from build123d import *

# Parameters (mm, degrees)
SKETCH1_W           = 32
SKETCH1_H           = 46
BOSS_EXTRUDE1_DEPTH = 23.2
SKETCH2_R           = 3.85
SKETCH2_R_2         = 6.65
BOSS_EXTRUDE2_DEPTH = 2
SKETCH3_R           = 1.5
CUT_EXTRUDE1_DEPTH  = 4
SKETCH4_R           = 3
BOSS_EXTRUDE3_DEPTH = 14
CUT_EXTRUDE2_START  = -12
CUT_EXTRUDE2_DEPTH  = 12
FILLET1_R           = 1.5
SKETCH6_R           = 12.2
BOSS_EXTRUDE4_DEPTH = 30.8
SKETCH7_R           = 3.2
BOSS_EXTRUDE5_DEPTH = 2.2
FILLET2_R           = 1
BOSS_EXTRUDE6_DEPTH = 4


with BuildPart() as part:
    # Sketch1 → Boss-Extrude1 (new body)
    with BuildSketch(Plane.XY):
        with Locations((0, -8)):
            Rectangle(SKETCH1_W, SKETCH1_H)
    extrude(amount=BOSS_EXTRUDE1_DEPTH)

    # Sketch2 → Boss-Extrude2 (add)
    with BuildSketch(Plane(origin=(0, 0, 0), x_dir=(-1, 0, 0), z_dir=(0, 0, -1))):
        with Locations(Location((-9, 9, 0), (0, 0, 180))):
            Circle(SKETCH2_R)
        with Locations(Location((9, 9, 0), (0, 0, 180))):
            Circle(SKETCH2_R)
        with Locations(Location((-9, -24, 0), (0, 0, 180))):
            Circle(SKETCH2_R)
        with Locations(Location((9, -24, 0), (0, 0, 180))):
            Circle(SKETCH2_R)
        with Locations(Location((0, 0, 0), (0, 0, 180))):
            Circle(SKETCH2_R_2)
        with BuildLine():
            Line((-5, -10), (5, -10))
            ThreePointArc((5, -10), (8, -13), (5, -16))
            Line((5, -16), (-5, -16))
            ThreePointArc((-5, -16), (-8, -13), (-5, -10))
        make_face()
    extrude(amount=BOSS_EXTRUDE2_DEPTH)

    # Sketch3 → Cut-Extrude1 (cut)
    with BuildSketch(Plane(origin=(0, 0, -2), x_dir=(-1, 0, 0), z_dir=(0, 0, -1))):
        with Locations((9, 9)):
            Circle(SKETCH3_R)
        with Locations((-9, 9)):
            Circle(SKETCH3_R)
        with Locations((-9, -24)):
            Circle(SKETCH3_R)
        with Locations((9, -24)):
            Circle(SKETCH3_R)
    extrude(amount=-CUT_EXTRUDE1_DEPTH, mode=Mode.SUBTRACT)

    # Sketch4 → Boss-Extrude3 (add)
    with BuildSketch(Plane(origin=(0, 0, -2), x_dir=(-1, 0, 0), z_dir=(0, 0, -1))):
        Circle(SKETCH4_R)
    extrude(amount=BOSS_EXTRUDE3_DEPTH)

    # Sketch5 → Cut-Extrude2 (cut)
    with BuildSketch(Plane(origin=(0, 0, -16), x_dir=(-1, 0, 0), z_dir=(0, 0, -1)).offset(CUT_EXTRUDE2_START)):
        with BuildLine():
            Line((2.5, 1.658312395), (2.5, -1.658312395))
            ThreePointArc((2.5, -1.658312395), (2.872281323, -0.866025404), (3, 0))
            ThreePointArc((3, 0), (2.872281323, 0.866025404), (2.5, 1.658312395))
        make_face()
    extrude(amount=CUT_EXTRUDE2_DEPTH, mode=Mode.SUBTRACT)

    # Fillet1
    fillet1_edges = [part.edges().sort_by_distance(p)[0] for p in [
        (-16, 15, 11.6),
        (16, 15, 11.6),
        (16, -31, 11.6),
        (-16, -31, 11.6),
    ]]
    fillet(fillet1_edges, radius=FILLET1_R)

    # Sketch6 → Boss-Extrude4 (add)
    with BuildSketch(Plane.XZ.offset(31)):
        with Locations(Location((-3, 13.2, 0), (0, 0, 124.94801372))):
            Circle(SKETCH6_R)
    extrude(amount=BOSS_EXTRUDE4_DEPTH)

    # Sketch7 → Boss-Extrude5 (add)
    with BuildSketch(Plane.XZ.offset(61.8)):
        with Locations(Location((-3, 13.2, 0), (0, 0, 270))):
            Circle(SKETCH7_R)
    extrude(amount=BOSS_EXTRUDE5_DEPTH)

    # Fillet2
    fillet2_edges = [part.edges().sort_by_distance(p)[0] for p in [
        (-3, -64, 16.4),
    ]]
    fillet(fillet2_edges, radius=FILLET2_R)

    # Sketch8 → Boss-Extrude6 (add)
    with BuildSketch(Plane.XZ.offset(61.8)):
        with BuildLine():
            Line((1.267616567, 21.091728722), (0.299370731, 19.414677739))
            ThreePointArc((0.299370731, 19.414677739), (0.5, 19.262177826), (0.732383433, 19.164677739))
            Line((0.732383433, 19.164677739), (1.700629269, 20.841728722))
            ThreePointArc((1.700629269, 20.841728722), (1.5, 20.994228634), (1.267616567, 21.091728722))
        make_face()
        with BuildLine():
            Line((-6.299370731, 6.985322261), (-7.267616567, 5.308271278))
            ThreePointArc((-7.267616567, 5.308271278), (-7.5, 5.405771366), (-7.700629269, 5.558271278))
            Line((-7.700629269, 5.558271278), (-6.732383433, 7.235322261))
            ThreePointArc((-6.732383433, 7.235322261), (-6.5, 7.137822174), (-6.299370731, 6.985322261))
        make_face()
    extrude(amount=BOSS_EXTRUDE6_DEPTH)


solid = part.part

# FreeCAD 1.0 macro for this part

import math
import FreeCAD as App
import Part
import Sketcher
Q = App.Units.Quantity


def edges_at(feature, points):
    """Names of the edges that pass closest to the given points."""
    edges = feature.Shape.Edges
    near = lambda p: min(range(len(edges)), key=lambda i: edges[i].distToShape(Part.Vertex(*p))[0])
    return sorted({f"Edge{near(p) + 1}" for p in points})


def add_polygon(sketch, points):
    """Adds a closed chain of lines whose ends are joined by coincident constraints."""
    first, n = sketch.GeometryCount, len(points)
    for a, b in zip(points, points[1:] + points[:1]):
        sketch.addGeometry(Part.LineSegment(App.Vector(*a, 0), App.Vector(*b, 0)), False)
    for i in range(n):
        sketch.addConstraint(Sketcher.Constraint("Coincident", first + i, 2, first + (i + 1) % n, 1))

doc = App.newDocument("Part")
body = doc.addObject("PartDesign::Body", "Body")

# Sketch on XY plane
sketch1 = body.newObject("Sketcher::SketchObject", "Sketch")
sketch1.AttachmentSupport = (doc.getObject("XY_Plane"), [""])
sketch1.MapMode = "FlatFace"
add_polygon(sketch1, [(-16, 15), (-16, -31), (16, -31), (16, 15)])  # lines 0-3
sketch1.addConstraint(Sketcher.Constraint("Vertical", 0))
sketch1.addConstraint(Sketcher.Constraint("Horizontal", 1))
sketch1.addConstraint(Sketcher.Constraint("Vertical", 2))
sketch1.addConstraint(Sketcher.Constraint("Horizontal", 3))
sketch1.addConstraint(Sketcher.Constraint("DistanceX", 1, 1, 1, 2, Q("32 mm")))
sketch1.addConstraint(Sketcher.Constraint("DistanceY", 0, 2, 0, 1, Q("46 mm")))
sketch1.addConstraint(Sketcher.Constraint("DistanceX", 0, 2, -1, 1, Q("16 mm")))
sketch1.addConstraint(Sketcher.Constraint("DistanceY", 0, 2, -1, 1, Q("31 mm")))
pad1 = body.newObject("PartDesign::Pad", "Pad")
pad1.Profile = sketch1
pad1.Length = 23.2

# Sketch on XY plane
sketch2 = body.newObject("Sketcher::SketchObject", "Sketch001")
sketch2.AttachmentSupport = (doc.getObject("XY_Plane"), [""])
sketch2.MapMode = "FlatFace"
sketch2.addGeometry(Part.Circle(App.Vector(9, 9, 0), App.Vector(0, 0, 1), 3.9), False)
sketch2.addGeometry(Part.Circle(App.Vector(-9, 9, 0), App.Vector(0, 0, 1), 3.9), False)
sketch2.addGeometry(Part.Circle(App.Vector(9, -24, 0), App.Vector(0, 0, 1), 3.9), False)
sketch2.addGeometry(Part.Circle(App.Vector(-9, -24, 0), App.Vector(0, 0, 1), 3.9), False)
sketch2.addGeometry(Part.Circle(App.Vector(0, 0, 0), App.Vector(0, 0, 1), 6.7), False)
sketch2.addGeometry(Part.LineSegment(App.Vector(-5, -10, 0), App.Vector(5, -10, 0)), False)
sketch2.addGeometry(Part.ArcOfCircle(Part.Circle(App.Vector(5, -13, 0), App.Vector(0, 0, 1), 3), math.radians(-90), math.radians(90)), False)
sketch2.addGeometry(Part.LineSegment(App.Vector(5, -16, 0), App.Vector(-5, -16, 0)), False)
sketch2.addGeometry(Part.ArcOfCircle(Part.Circle(App.Vector(-5, -13, 0), App.Vector(0, 0, 1), 3), math.radians(90), math.radians(270)), False)
sketch2.addConstraint(Sketcher.Constraint("Tangent", 5, 2, 6, 2))
sketch2.addConstraint(Sketcher.Constraint("Tangent", 6, 1, 7, 1))
sketch2.addConstraint(Sketcher.Constraint("Tangent", 7, 2, 8, 2))
sketch2.addConstraint(Sketcher.Constraint("Tangent", 8, 1, 5, 1))
sketch2.addConstraint(Sketcher.Constraint("Horizontal", 5))
sketch2.addConstraint(Sketcher.Constraint("Horizontal", 7))
sketch2.addConstraint(Sketcher.Constraint("Coincident", 4, 3, -1, 1))
sketch2.addConstraint(Sketcher.Constraint("Equal", 0, 1))
sketch2.addConstraint(Sketcher.Constraint("Equal", 1, 2))
sketch2.addConstraint(Sketcher.Constraint("Equal", 2, 3))
sketch2.addConstraint(Sketcher.Constraint("Symmetric", 0, 3, 1, 3, -2))
sketch2.addConstraint(Sketcher.Constraint("Symmetric", 2, 3, 3, 3, -2))
sketch2.addConstraint(Sketcher.Constraint("Vertical", 0, 3, 2, 3))
sketch2.addConstraint(Sketcher.Constraint("Radius", 6, Q("3 mm")))
sketch2.addConstraint(Sketcher.Constraint("Diameter", 0, Q("7.7 mm")))
sketch2.addConstraint(Sketcher.Constraint("Diameter", 4, Q("13.3 mm")))
sketch2.addConstraint(Sketcher.Constraint("DistanceX", 5, 1, 5, 2, Q("10 mm")))
sketch2.addConstraint(Sketcher.Constraint("DistanceX", -1, 1, 0, 3, Q("9 mm")))
sketch2.addConstraint(Sketcher.Constraint("DistanceY", -1, 1, 0, 3, Q("9 mm")))
sketch2.addConstraint(Sketcher.Constraint("DistanceY", 2, 3, -1, 1, Q("24 mm")))
sketch2.addConstraint(Sketcher.Constraint("DistanceX", -1, 1, 6, 3, Q("5 mm")))
sketch2.addConstraint(Sketcher.Constraint("DistanceY", 6, 3, -1, 1, Q("13 mm")))
pad2 = body.newObject("PartDesign::Pad", "Pad001")
pad2.Profile = sketch2
pad2.Length = 2
pad2.Reversed = True

# Sketch on XY plane
sketch3 = body.newObject("Sketcher::SketchObject", "Sketch002")
sketch3.AttachmentSupport = (doc.getObject("XY_Plane"), [""])
sketch3.MapMode = "FlatFace"
sketch3.AttachmentOffset = App.Placement(App.Vector(0, 0, -2), App.Rotation())
sketch3.addGeometry(Part.Circle(App.Vector(-9, 9, 0), App.Vector(0, 0, 1), 1.5), False)
sketch3.addGeometry(Part.Circle(App.Vector(9, 9, 0), App.Vector(0, 0, 1), 1.5), False)
sketch3.addGeometry(Part.Circle(App.Vector(9, -24, 0), App.Vector(0, 0, 1), 1.5), False)
sketch3.addGeometry(Part.Circle(App.Vector(-9, -24, 0), App.Vector(0, 0, 1), 1.5), False)
sketch3.addConstraint(Sketcher.Constraint("Equal", 0, 1))
sketch3.addConstraint(Sketcher.Constraint("Equal", 1, 2))
sketch3.addConstraint(Sketcher.Constraint("Equal", 2, 3))
sketch3.addConstraint(Sketcher.Constraint("Symmetric", 0, 3, 1, 3, -2))
sketch3.addConstraint(Sketcher.Constraint("Symmetric", 2, 3, 3, 3, -2))
sketch3.addConstraint(Sketcher.Constraint("Vertical", 1, 3, 2, 3))
sketch3.addConstraint(Sketcher.Constraint("Diameter", 0, Q("3 mm")))
sketch3.addConstraint(Sketcher.Constraint("DistanceX", 0, 3, -1, 1, Q("9 mm")))
sketch3.addConstraint(Sketcher.Constraint("DistanceY", -1, 1, 0, 3, Q("9 mm")))
sketch3.addConstraint(Sketcher.Constraint("DistanceY", 2, 3, -1, 1, Q("24 mm")))
pocket1 = body.newObject("PartDesign::Pocket", "Pocket")
pocket1.Profile = sketch3
pocket1.Length = 4
pocket1.Reversed = True

# Sketch on XY plane
sketch4 = body.newObject("Sketcher::SketchObject", "Sketch003")
sketch4.AttachmentSupport = (doc.getObject("XY_Plane"), [""])
sketch4.MapMode = "FlatFace"
sketch4.AttachmentOffset = App.Placement(App.Vector(0, 0, -2), App.Rotation())
sketch4.addGeometry(Part.Circle(App.Vector(0, 0, 0), App.Vector(0, 0, 1), 3), False)
sketch4.addConstraint(Sketcher.Constraint("Coincident", 0, 3, -1, 1))
sketch4.addConstraint(Sketcher.Constraint("Diameter", 0, Q("6 mm")))
pad3 = body.newObject("PartDesign::Pad", "Pad002")
pad3.Profile = sketch4
pad3.Length = 14
pad3.Reversed = True

# Sketch on XY plane
sketch5 = body.newObject("Sketcher::SketchObject", "Sketch004")
sketch5.AttachmentSupport = (doc.getObject("XY_Plane"), [""])
sketch5.MapMode = "FlatFace"
sketch5.AttachmentOffset = App.Placement(App.Vector(0, 0, -4), App.Rotation())
sketch5.addGeometry(Part.LineSegment(App.Vector(-2.5, 1.7, 0), App.Vector(-2.5, -1.7, 0)), False)
sketch5.addGeometry(Part.ArcOfCircle(Part.Circle(App.Vector(0, 0, 0), App.Vector(0, 0, 1), 3), math.radians(-180), math.radians(-146)), False)
sketch5.addGeometry(Part.ArcOfCircle(Part.Circle(App.Vector(0, 0, 0), App.Vector(0, 0, 1), 3), math.radians(146), math.radians(180)), False)
sketch5.addConstraint(Sketcher.Constraint("Coincident", 0, 2, 1, 2))
sketch5.addConstraint(Sketcher.Constraint("Tangent", 1, 1, 2, 2))
sketch5.addConstraint(Sketcher.Constraint("Coincident", 2, 1, 0, 1))
sketch5.addConstraint(Sketcher.Constraint("Vertical", 0))
sketch5.addConstraint(Sketcher.Constraint("Coincident", 1, 3, -1, 1))
sketch5.addConstraint(Sketcher.Constraint("Equal", 1, 2))
sketch5.addConstraint(Sketcher.Constraint("PointOnObject", 1, 1, -1))
sketch5.addConstraint(Sketcher.Constraint("Radius", 1, Q("3 mm")))
sketch5.addConstraint(Sketcher.Constraint("DistanceX", 0, 2, -1, 1, Q("2.5 mm")))
pocket2 = body.newObject("PartDesign::Pocket", "Pocket001")
pocket2.Profile = sketch5
pocket2.Length = 12
doc.recompute()

fillet = body.newObject("PartDesign::Fillet", "Fillet")
fillet.Base = (pocket2, edges_at(pocket2, [
    (-16, 15, 11.6),
    (16, 15, 11.6),
    (16, -31, 11.6),
    (-16, -31, 11.6),
]))
fillet.Radius = 1.5

# Sketch on XZ plane
sketch6 = body.newObject("Sketcher::SketchObject", "Sketch005")
sketch6.AttachmentSupport = (doc.getObject("XZ_Plane"), [""])
sketch6.MapMode = "FlatFace"
sketch6.AttachmentOffset = App.Placement(App.Vector(0, 0, 31), App.Rotation())
sketch6.addGeometry(Part.Circle(App.Vector(-3, 13, 0), App.Vector(0, 0, 1), 12), False)
sketch6.addConstraint(Sketcher.Constraint("Diameter", 0, Q("24.4 mm")))
sketch6.addConstraint(Sketcher.Constraint("DistanceX", 0, 3, -1, 1, Q("3 mm")))
sketch6.addConstraint(Sketcher.Constraint("DistanceY", -1, 1, 0, 3, Q("13.2 mm")))
pad4 = body.newObject("PartDesign::Pad", "Pad003")
pad4.Profile = sketch6
pad4.Length = 30.8

# Sketch on XZ plane
sketch7 = body.newObject("Sketcher::SketchObject", "Sketch006")
sketch7.AttachmentSupport = (doc.getObject("XZ_Plane"), [""])
sketch7.MapMode = "FlatFace"
sketch7.AttachmentOffset = App.Placement(App.Vector(0, 0, 61.8), App.Rotation())
sketch7.addGeometry(Part.Circle(App.Vector(-3, 13.2, 0), App.Vector(0, 0, 1), 3.2), False)
sketch7.addConstraint(Sketcher.Constraint("Diameter", 0, Q("6.4 mm")))
sketch7.addConstraint(Sketcher.Constraint("DistanceX", 0, 3, -1, 1, Q("3 mm")))
sketch7.addConstraint(Sketcher.Constraint("DistanceY", -1, 1, 0, 3, Q("13.2 mm")))
pad5 = body.newObject("PartDesign::Pad", "Pad004")
pad5.Profile = sketch7
pad5.Length = 2.2
doc.recompute()

fillet2 = body.newObject("PartDesign::Fillet", "Fillet001")
fillet2.Base = (pad5, edges_at(pad5, [(-3, -64, 16.4)]))
fillet2.Radius = 1

# Sketch on XZ plane
sketch8 = body.newObject("Sketcher::SketchObject", "Sketch007")
sketch8.AttachmentSupport = (doc.getObject("XZ_Plane"), [""])
sketch8.MapMode = "FlatFace"
sketch8.AttachmentOffset = App.Placement(App.Vector(0, 0, 61.8), App.Rotation())
sketch8.addGeometry(Part.LineSegment(App.Vector(1.3, 21.1, 0), App.Vector(0.3, 19.4, 0)), False)
sketch8.addGeometry(Part.ArcOfCircle(Part.Circle(App.Vector(1, 20.1, 0), App.Vector(0, 0, 1), 1), math.radians(-134), math.radians(-106)), False)
sketch8.addGeometry(Part.LineSegment(App.Vector(0.7, 19.2, 0), App.Vector(1.7, 20.8, 0)), False)
sketch8.addGeometry(Part.ArcOfCircle(Part.Circle(App.Vector(1, 20.1, 0), App.Vector(0, 0, 1), 1), math.radians(46), math.radians(74)), False)
sketch8.addGeometry(Part.LineSegment(App.Vector(-7.3, 5.3, 0), App.Vector(-6.3, 7, 0)), False)
sketch8.addGeometry(Part.ArcOfCircle(Part.Circle(App.Vector(-7, 6.3, 0), App.Vector(0, 0, 1), 1), math.radians(46), math.radians(74)), False)
sketch8.addGeometry(Part.LineSegment(App.Vector(-6.7, 7.2, 0), App.Vector(-7.7, 5.6, 0)), False)
sketch8.addGeometry(Part.ArcOfCircle(Part.Circle(App.Vector(-7, 6.3, 0), App.Vector(0, 0, 1), 1), math.radians(-134), math.radians(-106)), False)
sketch8.addConstraint(Sketcher.Constraint("Coincident", 0, 2, 1, 1))
sketch8.addConstraint(Sketcher.Constraint("Coincident", 1, 2, 2, 1))
sketch8.addConstraint(Sketcher.Constraint("Coincident", 2, 2, 3, 1))
sketch8.addConstraint(Sketcher.Constraint("Coincident", 3, 2, 0, 1))
sketch8.addConstraint(Sketcher.Constraint("Coincident", 4, 2, 5, 1))
sketch8.addConstraint(Sketcher.Constraint("Coincident", 5, 2, 6, 1))
sketch8.addConstraint(Sketcher.Constraint("Coincident", 6, 2, 7, 1))
sketch8.addConstraint(Sketcher.Constraint("Coincident", 7, 2, 4, 1))
sketch8.addConstraint(Sketcher.Constraint("Coincident", 3, 3, 1, 3))
sketch8.addConstraint(Sketcher.Constraint("Coincident", 7, 3, 5, 3))
sketch8.addConstraint(Sketcher.Constraint("Equal", 1, 3))
sketch8.addConstraint(Sketcher.Constraint("Equal", 3, 5))
sketch8.addConstraint(Sketcher.Constraint("Equal", 5, 7))
sketch8.addConstraint(Sketcher.Constraint("Parallel", 0, 2))
sketch8.addConstraint(Sketcher.Constraint("Parallel", 2, 4))
sketch8.addConstraint(Sketcher.Constraint("Parallel", 4, 6))
sketch8.addConstraint(Sketcher.Constraint("Equal", 0, 2))
sketch8.addConstraint(Sketcher.Constraint("Equal", 2, 4))
sketch8.addConstraint(Sketcher.Constraint("Equal", 4, 6))
sketch8.addConstraint(Sketcher.Constraint("Radius", 1, Q("1 mm")))
sketch8.addConstraint(Sketcher.Constraint("Angle", 0, Q("-120 deg")))
sketch8.addConstraint(Sketcher.Constraint("DistanceX", -1, 1, 1, 3, Q("1 mm")))
sketch8.addConstraint(Sketcher.Constraint("DistanceX", 5, 3, -1, 1, Q("7 mm")))
sketch8.addConstraint(Sketcher.Constraint("DistanceY", 1, 2, 0, 2, Q("0.25 mm")))
sketch8.addConstraint(Sketcher.Constraint("DistanceY", -1, 1, 2, 2, Q("20.841729 mm")))
sketch8.addConstraint(Sketcher.Constraint("DistanceY", -1, 1, 6, 2, Q("5.558271 mm")))
pad6 = body.newObject("PartDesign::Pad", "Pad005")
pad6.Profile = sketch8
pad6.Length = 4

doc.recompute()
